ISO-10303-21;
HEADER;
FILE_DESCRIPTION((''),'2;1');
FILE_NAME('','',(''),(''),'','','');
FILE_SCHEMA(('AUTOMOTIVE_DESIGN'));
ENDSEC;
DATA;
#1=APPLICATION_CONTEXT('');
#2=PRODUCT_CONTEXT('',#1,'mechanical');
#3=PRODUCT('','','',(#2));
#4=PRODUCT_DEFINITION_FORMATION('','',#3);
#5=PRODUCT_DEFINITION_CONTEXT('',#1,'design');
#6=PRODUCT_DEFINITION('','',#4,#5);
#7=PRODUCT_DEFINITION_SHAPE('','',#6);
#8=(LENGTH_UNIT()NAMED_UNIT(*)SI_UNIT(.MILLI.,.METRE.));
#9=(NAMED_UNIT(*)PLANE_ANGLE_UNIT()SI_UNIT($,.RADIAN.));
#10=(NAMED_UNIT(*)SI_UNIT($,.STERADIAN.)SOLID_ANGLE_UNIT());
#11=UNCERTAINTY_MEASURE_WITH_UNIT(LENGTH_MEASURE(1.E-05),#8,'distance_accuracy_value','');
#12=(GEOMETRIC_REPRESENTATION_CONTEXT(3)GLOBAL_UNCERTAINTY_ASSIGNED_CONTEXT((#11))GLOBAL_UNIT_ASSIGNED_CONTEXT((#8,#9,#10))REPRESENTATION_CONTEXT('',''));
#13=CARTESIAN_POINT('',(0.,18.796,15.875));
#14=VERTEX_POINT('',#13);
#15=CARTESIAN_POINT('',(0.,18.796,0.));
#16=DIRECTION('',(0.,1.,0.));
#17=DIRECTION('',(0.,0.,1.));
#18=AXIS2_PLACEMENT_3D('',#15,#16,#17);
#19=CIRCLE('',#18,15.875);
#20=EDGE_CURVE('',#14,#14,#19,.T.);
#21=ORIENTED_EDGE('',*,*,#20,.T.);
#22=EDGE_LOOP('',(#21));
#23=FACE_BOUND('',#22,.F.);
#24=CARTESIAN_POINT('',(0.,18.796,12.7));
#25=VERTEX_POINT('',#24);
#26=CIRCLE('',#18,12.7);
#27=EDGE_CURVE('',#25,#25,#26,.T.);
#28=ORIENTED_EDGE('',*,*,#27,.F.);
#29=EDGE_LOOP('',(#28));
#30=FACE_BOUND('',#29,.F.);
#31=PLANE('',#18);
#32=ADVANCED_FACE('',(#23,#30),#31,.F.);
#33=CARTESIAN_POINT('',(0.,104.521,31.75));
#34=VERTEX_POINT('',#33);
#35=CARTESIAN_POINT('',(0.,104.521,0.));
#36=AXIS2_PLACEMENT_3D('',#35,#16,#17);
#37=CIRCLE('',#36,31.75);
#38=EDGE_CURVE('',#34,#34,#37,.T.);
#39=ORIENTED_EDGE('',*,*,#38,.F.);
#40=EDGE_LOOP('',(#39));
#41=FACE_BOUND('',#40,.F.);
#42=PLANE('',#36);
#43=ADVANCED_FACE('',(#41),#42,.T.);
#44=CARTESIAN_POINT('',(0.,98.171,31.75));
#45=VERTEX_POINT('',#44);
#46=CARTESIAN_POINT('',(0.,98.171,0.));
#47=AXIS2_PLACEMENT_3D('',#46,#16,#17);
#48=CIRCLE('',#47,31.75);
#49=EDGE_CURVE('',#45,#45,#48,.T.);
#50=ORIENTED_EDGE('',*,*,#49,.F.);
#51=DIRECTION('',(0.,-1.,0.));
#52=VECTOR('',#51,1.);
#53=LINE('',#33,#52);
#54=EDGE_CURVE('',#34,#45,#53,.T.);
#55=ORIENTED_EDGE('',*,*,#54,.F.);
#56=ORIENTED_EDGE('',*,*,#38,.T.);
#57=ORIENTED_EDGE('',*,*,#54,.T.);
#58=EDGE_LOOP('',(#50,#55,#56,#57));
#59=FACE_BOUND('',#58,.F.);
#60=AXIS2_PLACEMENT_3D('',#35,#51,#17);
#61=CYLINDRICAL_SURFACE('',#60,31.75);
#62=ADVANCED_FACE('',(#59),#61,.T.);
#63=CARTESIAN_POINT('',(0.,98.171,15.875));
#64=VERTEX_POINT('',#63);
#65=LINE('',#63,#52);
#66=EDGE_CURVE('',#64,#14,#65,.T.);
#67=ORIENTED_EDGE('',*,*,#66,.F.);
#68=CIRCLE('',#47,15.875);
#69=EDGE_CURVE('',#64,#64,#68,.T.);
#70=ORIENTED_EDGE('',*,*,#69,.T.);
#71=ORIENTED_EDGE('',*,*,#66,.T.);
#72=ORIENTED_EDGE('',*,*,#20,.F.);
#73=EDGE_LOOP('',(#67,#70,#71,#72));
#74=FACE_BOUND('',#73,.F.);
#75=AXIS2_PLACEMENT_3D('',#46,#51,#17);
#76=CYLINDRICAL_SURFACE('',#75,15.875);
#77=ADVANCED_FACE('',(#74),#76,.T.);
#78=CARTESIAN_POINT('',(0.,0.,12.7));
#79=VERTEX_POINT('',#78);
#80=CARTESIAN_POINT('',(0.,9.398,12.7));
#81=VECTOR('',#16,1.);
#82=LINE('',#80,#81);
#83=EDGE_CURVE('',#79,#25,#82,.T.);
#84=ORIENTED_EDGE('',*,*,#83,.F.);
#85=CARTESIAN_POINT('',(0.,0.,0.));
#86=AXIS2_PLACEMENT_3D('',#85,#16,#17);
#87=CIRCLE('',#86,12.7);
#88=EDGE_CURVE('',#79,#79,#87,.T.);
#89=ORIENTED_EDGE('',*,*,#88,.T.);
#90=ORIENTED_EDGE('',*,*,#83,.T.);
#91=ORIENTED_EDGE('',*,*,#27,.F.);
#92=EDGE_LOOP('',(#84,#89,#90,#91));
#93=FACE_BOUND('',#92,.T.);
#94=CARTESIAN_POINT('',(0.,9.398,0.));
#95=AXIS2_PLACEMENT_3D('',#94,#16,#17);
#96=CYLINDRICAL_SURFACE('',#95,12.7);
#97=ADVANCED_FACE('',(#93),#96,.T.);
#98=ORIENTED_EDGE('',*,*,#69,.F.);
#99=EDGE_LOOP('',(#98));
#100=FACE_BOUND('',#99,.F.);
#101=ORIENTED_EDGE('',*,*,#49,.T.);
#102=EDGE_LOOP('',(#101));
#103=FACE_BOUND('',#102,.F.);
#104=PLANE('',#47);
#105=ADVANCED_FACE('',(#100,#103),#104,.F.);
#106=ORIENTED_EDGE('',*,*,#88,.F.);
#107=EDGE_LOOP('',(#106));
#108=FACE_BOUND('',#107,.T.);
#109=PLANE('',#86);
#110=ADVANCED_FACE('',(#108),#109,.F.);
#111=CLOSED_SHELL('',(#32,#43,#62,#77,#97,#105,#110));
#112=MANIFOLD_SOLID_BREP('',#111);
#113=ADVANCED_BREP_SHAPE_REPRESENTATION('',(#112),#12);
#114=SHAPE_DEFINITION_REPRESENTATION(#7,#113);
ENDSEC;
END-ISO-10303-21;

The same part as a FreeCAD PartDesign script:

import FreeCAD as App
import Part
import Sketcher
Q = App.Units.Quantity

doc = App.newDocument("Part")
body = doc.addObject("PartDesign::Body", "Body")

sketch1 = body.newObject("Sketcher::SketchObject", "Sketch")
sketch1.AttachmentSupport = (doc.getObject("YZ_Plane"), [""])
sketch1.MapMode = "FlatFace"
sketch1.addGeometry([
    Part.LineSegment(App.Vector(0, 12.7, 0), App.Vector(0, 0, 0)),
    Part.LineSegment(App.Vector(0, 0, 0), App.Vector(104.5, 0, 0)),
    Part.LineSegment(App.Vector(104.5, 0, 0), App.Vector(104.5, 31.8, 0)),
    Part.LineSegment(App.Vector(104.5, 31.8, 0), App.Vector(98.2, 31.8, 0)),
    Part.LineSegment(App.Vector(98.2, 31.8, 0), App.Vector(98.2, 15.9, 0)),
    Part.LineSegment(App.Vector(98.2, 15.9, 0), App.Vector(18.8, 15.9, 0)),
    Part.LineSegment(App.Vector(18.8, 15.9, 0), App.Vector(18.8, 12.7, 0)),
    Part.LineSegment(App.Vector(18.8, 12.7, 0), App.Vector(0, 12.7, 0)),
], False)
sketch1.addConstraint([
    Sketcher.Constraint("Coincident", 0, 2, 1, 1),
    Sketcher.Constraint("Coincident", 1, 2, 2, 1),
    Sketcher.Constraint("Coincident", 2, 2, 3, 1),
    Sketcher.Constraint("Coincident", 3, 2, 4, 1),
    Sketcher.Constraint("Coincident", 4, 2, 5, 1),
    Sketcher.Constraint("Coincident", 5, 2, 6, 1),
    Sketcher.Constraint("Coincident", 6, 2, 7, 1),
    Sketcher.Constraint("Coincident", 7, 2, 0, 1),
    Sketcher.Constraint("Vertical", 0),
    Sketcher.Constraint("Horizontal", 1),
    Sketcher.Constraint("Vertical", 2),
    Sketcher.Constraint("Horizontal", 3),
    Sketcher.Constraint("Vertical", 4),
    Sketcher.Constraint("Horizontal", 5),
    Sketcher.Constraint("Vertical", 6),
    Sketcher.Constraint("Horizontal", 7),
    Sketcher.Constraint("Coincident", 0, 2, -1, 1),
    Sketcher.Constraint("DistanceY", 0, 2, 0, 1, Q("0.5 in")),
    Sketcher.Constraint("DistanceX", 3, 2, 3, 1, Q("0.25 in")),
    Sketcher.Constraint("DistanceX", 7, 2, 7, 1, Q("0.74 in")),
    Sketcher.Constraint("DistanceY", 2, 1, 2, 2, Q("1.25 in")),
    Sketcher.Constraint("DistanceX", 1, 1, 1, 2, Q("4.115 in")),
    Sketcher.Constraint("DistanceY", 4, 2, 4, 1, Q("0.625 in")),
])
revolution = body.newObject("PartDesign::Revolution", "Revolution")
revolution.Profile = sketch1
revolution.ReferenceAxis = (sketch1, ["H_Axis"])
revolution.Angle = 360

doc.recompute()
